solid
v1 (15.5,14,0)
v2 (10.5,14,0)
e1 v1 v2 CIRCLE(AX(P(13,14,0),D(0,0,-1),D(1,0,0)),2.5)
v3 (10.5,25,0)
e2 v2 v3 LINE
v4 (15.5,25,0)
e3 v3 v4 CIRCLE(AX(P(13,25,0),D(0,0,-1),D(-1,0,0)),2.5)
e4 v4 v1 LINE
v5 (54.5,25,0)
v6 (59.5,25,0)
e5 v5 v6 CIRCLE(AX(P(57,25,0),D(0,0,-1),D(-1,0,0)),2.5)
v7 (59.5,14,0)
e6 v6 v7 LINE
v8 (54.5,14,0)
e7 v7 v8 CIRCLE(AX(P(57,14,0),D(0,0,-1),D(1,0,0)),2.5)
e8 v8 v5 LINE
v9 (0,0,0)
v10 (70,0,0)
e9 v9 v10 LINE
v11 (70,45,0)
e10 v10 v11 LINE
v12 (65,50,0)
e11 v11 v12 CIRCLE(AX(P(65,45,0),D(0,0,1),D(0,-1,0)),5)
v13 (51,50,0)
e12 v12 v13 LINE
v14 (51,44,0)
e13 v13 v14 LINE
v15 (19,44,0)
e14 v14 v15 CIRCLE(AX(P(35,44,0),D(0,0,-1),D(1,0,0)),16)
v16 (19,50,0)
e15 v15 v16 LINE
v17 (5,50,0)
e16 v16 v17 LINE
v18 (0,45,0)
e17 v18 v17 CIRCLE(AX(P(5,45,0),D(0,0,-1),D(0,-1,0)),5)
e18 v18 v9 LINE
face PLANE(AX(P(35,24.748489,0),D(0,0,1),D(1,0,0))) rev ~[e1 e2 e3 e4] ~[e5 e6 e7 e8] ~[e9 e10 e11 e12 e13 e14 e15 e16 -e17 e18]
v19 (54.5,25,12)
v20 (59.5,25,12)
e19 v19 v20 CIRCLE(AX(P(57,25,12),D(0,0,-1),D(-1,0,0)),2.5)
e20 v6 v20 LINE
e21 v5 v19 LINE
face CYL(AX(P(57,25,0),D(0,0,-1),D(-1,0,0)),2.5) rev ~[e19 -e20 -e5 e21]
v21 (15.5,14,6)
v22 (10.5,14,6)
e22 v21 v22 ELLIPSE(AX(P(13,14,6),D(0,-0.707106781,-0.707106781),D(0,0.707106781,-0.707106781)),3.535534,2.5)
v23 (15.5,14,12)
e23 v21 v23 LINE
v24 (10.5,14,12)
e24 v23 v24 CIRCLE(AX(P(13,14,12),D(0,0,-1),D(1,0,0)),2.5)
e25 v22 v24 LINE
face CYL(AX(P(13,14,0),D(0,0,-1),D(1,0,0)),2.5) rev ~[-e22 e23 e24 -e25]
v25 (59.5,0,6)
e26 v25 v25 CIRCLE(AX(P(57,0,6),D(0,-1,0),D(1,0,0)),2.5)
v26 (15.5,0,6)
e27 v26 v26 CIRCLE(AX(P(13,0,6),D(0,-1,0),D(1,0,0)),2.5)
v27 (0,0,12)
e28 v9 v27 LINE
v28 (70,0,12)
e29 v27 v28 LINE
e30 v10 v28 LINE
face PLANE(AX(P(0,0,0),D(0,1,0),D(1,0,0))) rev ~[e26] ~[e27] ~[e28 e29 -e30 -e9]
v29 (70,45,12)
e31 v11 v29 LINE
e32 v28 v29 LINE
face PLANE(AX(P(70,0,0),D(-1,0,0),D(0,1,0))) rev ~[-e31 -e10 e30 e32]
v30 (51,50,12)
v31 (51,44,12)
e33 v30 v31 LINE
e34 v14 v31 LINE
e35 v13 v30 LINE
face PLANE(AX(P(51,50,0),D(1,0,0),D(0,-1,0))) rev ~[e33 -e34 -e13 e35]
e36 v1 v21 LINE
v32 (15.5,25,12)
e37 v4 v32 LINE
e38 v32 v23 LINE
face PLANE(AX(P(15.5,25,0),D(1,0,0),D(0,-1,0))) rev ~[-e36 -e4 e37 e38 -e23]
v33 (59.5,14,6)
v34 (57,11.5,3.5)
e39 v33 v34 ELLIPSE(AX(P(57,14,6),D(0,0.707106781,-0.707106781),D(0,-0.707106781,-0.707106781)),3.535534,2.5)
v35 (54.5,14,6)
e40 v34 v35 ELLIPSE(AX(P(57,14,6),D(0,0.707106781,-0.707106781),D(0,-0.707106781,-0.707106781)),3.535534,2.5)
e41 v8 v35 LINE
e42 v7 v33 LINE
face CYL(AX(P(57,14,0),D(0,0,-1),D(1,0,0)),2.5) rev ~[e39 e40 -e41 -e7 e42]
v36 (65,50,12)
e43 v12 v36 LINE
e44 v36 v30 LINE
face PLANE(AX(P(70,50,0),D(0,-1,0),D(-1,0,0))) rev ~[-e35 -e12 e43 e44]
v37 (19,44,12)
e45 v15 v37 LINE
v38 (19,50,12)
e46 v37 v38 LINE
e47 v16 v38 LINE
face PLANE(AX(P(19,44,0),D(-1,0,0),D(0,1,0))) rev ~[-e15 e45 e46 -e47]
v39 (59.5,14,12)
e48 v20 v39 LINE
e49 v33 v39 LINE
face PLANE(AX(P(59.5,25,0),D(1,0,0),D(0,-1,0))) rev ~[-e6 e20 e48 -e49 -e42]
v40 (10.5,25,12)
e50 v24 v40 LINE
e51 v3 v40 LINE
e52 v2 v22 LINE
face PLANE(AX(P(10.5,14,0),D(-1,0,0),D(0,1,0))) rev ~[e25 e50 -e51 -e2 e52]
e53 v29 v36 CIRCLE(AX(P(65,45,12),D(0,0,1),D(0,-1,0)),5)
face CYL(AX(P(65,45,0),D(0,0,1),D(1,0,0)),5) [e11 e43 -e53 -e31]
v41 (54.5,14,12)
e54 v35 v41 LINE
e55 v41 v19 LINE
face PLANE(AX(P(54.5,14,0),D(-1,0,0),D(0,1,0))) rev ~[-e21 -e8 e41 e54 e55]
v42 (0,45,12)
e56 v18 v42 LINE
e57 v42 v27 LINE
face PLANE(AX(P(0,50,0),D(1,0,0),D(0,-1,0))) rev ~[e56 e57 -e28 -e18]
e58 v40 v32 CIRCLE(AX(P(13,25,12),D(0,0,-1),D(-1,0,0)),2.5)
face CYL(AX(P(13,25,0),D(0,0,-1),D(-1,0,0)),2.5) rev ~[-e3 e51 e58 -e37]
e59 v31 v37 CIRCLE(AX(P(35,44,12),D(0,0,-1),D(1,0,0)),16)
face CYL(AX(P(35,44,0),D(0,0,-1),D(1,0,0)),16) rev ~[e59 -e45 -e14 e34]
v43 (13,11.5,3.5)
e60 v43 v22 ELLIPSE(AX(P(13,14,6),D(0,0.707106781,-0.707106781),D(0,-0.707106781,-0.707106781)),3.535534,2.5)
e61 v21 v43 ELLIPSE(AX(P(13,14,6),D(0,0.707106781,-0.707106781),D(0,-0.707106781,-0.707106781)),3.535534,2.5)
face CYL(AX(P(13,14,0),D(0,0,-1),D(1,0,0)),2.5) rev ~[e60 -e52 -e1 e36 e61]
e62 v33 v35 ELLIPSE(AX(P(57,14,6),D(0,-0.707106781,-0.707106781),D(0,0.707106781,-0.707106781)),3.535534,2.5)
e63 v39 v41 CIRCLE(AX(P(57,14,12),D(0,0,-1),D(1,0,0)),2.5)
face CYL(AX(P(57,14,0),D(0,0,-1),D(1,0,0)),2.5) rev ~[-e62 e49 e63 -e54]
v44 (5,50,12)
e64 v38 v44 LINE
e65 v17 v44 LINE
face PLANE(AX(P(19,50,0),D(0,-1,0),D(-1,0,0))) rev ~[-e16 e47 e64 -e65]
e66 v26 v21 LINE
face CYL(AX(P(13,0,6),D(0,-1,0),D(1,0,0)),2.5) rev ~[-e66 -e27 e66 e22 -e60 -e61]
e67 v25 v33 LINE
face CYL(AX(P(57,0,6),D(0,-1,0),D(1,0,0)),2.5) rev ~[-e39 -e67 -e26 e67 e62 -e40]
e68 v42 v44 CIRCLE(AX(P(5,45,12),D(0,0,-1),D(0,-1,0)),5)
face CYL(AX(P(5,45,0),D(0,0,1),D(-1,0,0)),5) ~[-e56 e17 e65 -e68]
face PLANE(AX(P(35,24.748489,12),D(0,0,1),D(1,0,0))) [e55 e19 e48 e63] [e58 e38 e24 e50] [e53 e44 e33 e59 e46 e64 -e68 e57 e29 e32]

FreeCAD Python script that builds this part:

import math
import FreeCAD as App
import Part
import Sketcher

V = App.Vector


def edges_at(feature, points):
    """Names of the edges that pass closest to the given points."""
    edges = feature.Shape.Edges
    near = lambda p: min(range(len(edges)), key=lambda i: edges[i].distToShape(Part.Vertex(*p))[0])
    return sorted({f"Edge{near(p) + 1}" for p in points})

doc = App.newDocument("Part")
body = doc.addObject("PartDesign::Body", "Body")

# Sketch on XY plane
sketch1 = body.newObject("Sketcher::SketchObject", "Sketch")
sketch1.AttachmentSupport = (doc.getObject("XY_Plane"), [""])
sketch1.MapMode = "FlatFace"
sketch1.addGeometry([
    Part.LineSegment(V(0, 0, 0), V(70, 0, 0)),  # 0
    Part.LineSegment(V(70, 0, 0), V(70, 50, 0)),  # 1
    Part.LineSegment(V(70, 50, 0), V(51, 50, 0)),  # 2
    Part.LineSegment(V(51, 50, 0), V(51, 44, 0)),  # 3
    Part.ArcOfCircle(Part.Circle(V(35, 44, 0), V(0, 0, 1), 16), math.radians(180), math.radians(360)),  # 4
    Part.LineSegment(V(19, 44, 0), V(19, 50, 0)),  # 5
    Part.LineSegment(V(19, 50, 0), V(0, 50, 0)),  # 6
    Part.LineSegment(V(0, 50, 0), V(0, 0, 0)),  # 7
    Part.ArcOfCircle(Part.Circle(V(13, 25, 0), V(0, 0, 1), 2.5), math.radians(0), math.radians(180)),  # 8
    Part.LineSegment(V(15.5, 25, 0), V(15.5, 14, 0)),  # 9
    Part.ArcOfCircle(Part.Circle(V(13, 14, 0), V(0, 0, 1), 2.5), math.radians(180), math.radians(360)),  # 10
    Part.LineSegment(V(10.5, 14, 0), V(10.5, 25, 0)),  # 11
    Part.ArcOfCircle(Part.Circle(V(57, 25, 0), V(0, 0, 1), 2.5), math.radians(0), math.radians(180)),  # 12
    Part.LineSegment(V(59.5, 25, 0), V(59.5, 14, 0)),  # 13
    Part.ArcOfCircle(Part.Circle(V(57, 14, 0), V(0, 0, 1), 2.5), math.radians(180), math.radians(360)),  # 14
    Part.LineSegment(V(54.5, 14, 0), V(54.5, 25, 0)),  # 15
], False)
sketch1.addConstraint([
    Sketcher.Constraint("Coincident", 0, 2, 1, 1),
    Sketcher.Constraint("Coincident", 1, 2, 2, 1),
    Sketcher.Constraint("Coincident", 2, 2, 3, 1),
    Sketcher.Constraint("Tangent", 3, 2, 4, 2),
    Sketcher.Constraint("Tangent", 4, 1, 5, 1),
    Sketcher.Constraint("Coincident", 5, 2, 6, 1),
    Sketcher.Constraint("Coincident", 6, 2, 7, 1),
    Sketcher.Constraint("Coincident", 7, 2, 0, 1),
    Sketcher.Constraint("Tangent", 8, 1, 9, 1),
    Sketcher.Constraint("Tangent", 9, 2, 10, 2),
    Sketcher.Constraint("Tangent", 10, 1, 11, 1),
    Sketcher.Constraint("Tangent", 11, 2, 8, 2),
    Sketcher.Constraint("Tangent", 12, 1, 13, 1),
    Sketcher.Constraint("Tangent", 13, 2, 14, 2),
    Sketcher.Constraint("Tangent", 14, 1, 15, 1),
    Sketcher.Constraint("Tangent", 15, 2, 12, 2),
    Sketcher.Constraint("Horizontal", 0),
    Sketcher.Constraint("Vertical", 1),
    Sketcher.Constraint("Horizontal", 2),
    Sketcher.Constraint("Vertical", 3),
    Sketcher.Constraint("Vertical", 5),
    Sketcher.Constraint("Horizontal", 6),
    Sketcher.Constraint("Vertical", 7),
    Sketcher.Constraint("Vertical", 9),
    Sketcher.Constraint("Vertical", 11),
    Sketcher.Constraint("Vertical", 13),
    Sketcher.Constraint("Vertical", 15),
    Sketcher.Constraint("Coincident", 7, 2, -1, 1),
    Sketcher.Constraint("Equal", 10, 12),
    Sketcher.Constraint("Horizontal", 8, 3, 12, 3),
    Sketcher.Constraint("Horizontal", 10, 3, 14, 3),
    Sketcher.Constraint("Horizontal", 2, 2, 5, 2),
    Sketcher.Constraint("Equal", 2, 6),
    Sketcher.Constraint("Radius", 4, 16.0),
    Sketcher.Constraint("Radius", 8, 2.5),
    Sketcher.Constraint("DistanceX", 0, 1, 0, 2, 70.0),
    Sketcher.Constraint("DistanceY", 1, 1, 1, 2, 50.0),
    Sketcher.Constraint("DistanceY", 3, 2, 3, 1, 6.0),
    Sketcher.Constraint("DistanceY", 9, 2, 9, 1, 11.0),
    Sketcher.Constraint("DistanceX", -1, 1, 8, 3, 13.0),
    Sketcher.Constraint("DistanceY", -1, 1, 8, 3, 25.0),
    Sketcher.Constraint("DistanceX", -1, 1, 12, 3, 57.0),
])
pad1 = body.newObject("PartDesign::Pad", "Pad")
pad1.Profile = sketch1
pad1.Length = 12

# Sketch on XZ plane
sketch2 = body.newObject("Sketcher::SketchObject", "Sketch001")
sketch2.AttachmentSupport = (doc.getObject("XZ_Plane"), [""])
sketch2.MapMode = "FlatFace"
sketch2.addGeometry([
    Part.Circle(V(13, 6, 0), V(0, 0, 1), 2.5),
    Part.Circle(V(57, 6, 0), V(0, 0, 1), 2.5),
], False)
sketch2.addConstraint([
    Sketcher.Constraint("Equal", 0, 1),
    Sketcher.Constraint("Horizontal", 0, 3, 1, 3),
    Sketcher.Constraint("Diameter", 0, 5.0),
    Sketcher.Constraint("DistanceX", -1, 1, 0, 3, 13.0),
    Sketcher.Constraint("DistanceY", -1, 1, 0, 3, 6.0),
    Sketcher.Constraint("DistanceX", -1, 1, 1, 3, 57.0),
])
pocket1 = body.newObject("PartDesign::Pocket", "Pocket")
pocket1.Profile = sketch2
pocket1.Length = 15
doc.recompute()

fillet = body.newObject("PartDesign::Fillet", "Fillet")
fillet.Base = (pocket1, edges_at(pocket1, [(70, 50, 6), (0, 50, 6)]))
fillet.Radius = 5

doc.recompute()
